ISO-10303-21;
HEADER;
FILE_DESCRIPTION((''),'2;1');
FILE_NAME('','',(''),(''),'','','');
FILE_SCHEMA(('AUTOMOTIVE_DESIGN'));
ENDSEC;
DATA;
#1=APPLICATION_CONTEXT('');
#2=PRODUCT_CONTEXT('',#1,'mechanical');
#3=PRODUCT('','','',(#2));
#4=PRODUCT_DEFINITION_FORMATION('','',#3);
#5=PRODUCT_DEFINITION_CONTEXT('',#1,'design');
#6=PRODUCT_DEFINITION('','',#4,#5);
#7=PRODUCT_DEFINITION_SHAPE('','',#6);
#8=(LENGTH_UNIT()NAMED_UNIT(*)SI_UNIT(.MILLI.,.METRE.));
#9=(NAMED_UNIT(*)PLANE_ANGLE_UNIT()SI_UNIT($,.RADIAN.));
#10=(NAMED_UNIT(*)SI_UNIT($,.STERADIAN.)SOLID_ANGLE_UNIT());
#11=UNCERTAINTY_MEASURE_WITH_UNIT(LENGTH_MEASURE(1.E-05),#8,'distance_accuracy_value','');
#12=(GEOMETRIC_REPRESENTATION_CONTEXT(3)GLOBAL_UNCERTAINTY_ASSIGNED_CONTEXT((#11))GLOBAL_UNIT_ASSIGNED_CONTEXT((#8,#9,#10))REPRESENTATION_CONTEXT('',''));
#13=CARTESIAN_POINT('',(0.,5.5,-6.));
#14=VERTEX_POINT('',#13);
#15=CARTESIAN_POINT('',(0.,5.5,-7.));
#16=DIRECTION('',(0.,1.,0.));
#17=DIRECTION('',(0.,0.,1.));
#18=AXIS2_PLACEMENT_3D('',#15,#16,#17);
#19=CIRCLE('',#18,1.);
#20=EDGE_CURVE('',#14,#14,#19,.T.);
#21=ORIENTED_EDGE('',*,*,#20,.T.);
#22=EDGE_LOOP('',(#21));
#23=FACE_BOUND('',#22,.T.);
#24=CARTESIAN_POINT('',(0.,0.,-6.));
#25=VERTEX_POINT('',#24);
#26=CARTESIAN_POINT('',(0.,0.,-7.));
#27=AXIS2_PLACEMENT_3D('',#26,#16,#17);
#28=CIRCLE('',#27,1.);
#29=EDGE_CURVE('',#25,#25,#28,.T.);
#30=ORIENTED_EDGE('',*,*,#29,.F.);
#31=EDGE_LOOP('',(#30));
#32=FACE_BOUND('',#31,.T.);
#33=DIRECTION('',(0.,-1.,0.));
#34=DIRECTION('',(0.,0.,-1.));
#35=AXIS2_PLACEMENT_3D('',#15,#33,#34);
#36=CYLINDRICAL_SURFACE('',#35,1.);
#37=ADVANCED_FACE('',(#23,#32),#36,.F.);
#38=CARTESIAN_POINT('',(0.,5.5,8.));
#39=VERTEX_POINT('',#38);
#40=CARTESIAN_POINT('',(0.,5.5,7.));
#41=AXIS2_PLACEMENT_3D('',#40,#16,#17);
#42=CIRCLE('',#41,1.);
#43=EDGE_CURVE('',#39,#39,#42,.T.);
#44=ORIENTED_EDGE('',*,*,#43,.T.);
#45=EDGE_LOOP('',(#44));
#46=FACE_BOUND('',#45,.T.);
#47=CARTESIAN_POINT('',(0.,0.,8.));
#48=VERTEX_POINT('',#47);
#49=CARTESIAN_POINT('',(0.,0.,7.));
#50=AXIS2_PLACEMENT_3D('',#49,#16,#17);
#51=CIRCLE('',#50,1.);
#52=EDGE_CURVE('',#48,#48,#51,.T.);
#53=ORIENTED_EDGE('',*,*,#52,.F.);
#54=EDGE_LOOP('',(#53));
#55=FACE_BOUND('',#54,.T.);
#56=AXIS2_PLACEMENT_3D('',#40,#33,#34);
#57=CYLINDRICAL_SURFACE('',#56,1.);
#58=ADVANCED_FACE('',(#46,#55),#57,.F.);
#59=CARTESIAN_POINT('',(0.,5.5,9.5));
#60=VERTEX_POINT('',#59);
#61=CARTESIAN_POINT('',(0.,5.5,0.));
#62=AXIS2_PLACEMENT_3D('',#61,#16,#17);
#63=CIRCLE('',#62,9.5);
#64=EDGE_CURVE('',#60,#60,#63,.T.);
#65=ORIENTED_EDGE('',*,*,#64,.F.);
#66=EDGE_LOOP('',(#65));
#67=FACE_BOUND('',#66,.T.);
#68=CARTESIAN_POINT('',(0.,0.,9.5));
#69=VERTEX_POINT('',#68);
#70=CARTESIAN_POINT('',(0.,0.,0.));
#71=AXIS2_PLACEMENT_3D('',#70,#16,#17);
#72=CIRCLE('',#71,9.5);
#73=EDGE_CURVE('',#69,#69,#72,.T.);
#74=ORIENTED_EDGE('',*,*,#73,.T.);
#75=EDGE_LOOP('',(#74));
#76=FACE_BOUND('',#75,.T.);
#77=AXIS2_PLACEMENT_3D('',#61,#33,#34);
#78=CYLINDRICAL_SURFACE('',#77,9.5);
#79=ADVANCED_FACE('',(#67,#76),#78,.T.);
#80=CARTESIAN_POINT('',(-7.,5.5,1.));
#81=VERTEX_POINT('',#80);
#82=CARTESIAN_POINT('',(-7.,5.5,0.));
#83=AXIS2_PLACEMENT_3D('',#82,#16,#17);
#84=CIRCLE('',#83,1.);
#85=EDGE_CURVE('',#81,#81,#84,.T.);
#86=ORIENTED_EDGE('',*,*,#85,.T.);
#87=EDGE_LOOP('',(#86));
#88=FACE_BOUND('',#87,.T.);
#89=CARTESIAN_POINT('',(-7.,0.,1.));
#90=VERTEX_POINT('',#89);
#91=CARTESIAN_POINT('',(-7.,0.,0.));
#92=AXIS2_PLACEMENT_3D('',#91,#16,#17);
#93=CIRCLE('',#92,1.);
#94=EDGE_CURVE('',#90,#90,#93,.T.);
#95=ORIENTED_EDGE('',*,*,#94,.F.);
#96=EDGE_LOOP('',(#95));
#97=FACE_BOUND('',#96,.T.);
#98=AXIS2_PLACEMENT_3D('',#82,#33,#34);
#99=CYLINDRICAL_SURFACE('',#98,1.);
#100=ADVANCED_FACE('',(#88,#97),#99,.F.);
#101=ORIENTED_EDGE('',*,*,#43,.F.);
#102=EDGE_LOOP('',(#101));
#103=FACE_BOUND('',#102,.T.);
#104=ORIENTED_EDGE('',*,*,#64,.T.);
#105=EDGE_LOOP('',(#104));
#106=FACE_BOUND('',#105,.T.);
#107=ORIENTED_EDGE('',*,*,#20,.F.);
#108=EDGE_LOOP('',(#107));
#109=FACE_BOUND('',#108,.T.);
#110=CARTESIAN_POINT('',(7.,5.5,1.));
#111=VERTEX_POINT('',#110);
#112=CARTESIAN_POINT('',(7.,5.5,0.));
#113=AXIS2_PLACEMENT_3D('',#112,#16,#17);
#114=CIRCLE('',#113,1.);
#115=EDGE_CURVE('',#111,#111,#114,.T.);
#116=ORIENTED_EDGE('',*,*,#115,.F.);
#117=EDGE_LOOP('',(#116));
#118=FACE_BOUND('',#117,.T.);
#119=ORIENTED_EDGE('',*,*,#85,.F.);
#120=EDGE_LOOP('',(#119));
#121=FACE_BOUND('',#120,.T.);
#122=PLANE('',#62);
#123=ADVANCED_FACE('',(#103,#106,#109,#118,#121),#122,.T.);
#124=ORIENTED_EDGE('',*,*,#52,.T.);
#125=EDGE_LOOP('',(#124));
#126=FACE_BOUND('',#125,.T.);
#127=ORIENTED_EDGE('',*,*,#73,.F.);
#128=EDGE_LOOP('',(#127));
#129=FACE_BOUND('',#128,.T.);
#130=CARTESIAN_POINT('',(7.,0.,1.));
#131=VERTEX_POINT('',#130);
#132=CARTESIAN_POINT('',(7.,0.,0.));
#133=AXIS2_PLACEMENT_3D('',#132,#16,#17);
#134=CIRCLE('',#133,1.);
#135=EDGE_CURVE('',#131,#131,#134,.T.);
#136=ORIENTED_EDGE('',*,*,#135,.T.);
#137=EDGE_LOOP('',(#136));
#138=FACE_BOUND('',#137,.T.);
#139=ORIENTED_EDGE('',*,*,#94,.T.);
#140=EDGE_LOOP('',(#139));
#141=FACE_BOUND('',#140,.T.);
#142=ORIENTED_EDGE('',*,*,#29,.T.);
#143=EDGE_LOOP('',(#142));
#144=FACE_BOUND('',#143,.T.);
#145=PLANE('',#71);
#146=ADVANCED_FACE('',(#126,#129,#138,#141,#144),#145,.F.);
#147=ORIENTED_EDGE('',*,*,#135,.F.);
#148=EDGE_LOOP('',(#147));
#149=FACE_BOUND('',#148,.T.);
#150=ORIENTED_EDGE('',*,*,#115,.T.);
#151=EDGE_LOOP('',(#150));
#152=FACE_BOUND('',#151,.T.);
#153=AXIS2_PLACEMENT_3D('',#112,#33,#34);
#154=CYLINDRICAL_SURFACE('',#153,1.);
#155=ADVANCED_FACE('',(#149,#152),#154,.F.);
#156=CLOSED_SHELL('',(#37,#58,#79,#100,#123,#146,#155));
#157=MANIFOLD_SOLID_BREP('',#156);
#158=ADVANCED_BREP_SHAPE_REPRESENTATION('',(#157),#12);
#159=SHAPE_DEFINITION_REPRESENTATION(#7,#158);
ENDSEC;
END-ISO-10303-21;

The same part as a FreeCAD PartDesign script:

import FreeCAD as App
import Part
import Sketcher

V = App.Vector

doc = App.newDocument("Part")
body = doc.addObject("PartDesign::Body", "Body")

# Sketch on XZ plane
sketch1 = body.newObject("Sketcher::SketchObject", "Sketch")
sketch1.AttachmentSupport = (doc.getObject("XZ_Plane"), [""])
sketch1.MapMode = "FlatFace"
sketch1.addGeometry([
    Part.Circle(V(0, 0, 0), V(0, 0, 1), 9.5),  # 0
    Part.Circle(V(0, -7, 0), V(0, 0, 1), 1),  # 1
    Part.Circle(V(-7, 0, 0), V(0, 0, 1), 1),  # 2
    Part.Circle(V(7, 0, 0), V(0, 0, 1), 1),  # 3
    Part.Circle(V(0, 7, 0), V(0, 0, 1), 1),  # 4
], False)
sketch1.addConstraint([
    Sketcher.Constraint("Coincident", 0, 3, -1, 1),
    Sketcher.Constraint("Equal", 1, 2),
    Sketcher.Constraint("Equal", 2, 3),
    Sketcher.Constraint("Equal", 3, 4),
    Sketcher.Constraint("Symmetric", 2, 3, 3, 3, -1, 1),
    Sketcher.Constraint("Symmetric", 1, 3, 4, 3, -1, 1),
    Sketcher.Constraint("PointOnObject", 1, 3, -2),
    Sketcher.Constraint("PointOnObject", 2, 3, -1),
    Sketcher.Constraint("Diameter", 0, 19.0),
    Sketcher.Constraint("Diameter", 1, 2.0),
    Sketcher.Constraint("DistanceY", 1, 3, -1, 1, 7.0),
    Sketcher.Constraint("DistanceX", 2, 3, -1, 1, 7.0),
])
pad1 = body.newObject("PartDesign::Pad", "Pad")
pad1.Profile = sketch1
pad1.Length = 5.5
pad1.Reversed = True

doc.recompute()
